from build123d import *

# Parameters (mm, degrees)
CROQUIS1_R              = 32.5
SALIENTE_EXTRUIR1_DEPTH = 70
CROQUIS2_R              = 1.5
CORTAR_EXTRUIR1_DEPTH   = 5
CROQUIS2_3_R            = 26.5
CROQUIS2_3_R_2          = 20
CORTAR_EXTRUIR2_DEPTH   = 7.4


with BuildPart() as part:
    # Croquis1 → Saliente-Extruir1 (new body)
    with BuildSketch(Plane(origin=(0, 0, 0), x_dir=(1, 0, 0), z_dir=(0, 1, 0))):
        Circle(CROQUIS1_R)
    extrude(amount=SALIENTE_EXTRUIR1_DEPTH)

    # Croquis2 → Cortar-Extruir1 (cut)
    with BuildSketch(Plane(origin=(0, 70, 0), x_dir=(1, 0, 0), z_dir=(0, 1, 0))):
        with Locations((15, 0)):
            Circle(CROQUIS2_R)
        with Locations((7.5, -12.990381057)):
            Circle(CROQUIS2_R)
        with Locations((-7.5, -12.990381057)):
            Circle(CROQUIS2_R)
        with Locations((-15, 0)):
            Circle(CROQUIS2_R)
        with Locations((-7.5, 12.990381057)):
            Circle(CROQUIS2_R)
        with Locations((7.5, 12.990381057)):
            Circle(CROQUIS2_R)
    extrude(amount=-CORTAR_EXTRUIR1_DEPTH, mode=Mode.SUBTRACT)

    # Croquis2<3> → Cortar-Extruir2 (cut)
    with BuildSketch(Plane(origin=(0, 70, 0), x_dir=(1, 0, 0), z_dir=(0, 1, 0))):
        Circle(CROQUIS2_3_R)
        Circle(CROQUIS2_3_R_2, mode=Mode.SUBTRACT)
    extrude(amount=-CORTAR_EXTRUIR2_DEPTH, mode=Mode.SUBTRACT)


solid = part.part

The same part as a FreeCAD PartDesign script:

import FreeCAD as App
import Part
import Sketcher
Q = App.Units.Quantity

doc = App.newDocument("Part")
body = doc.addObject("PartDesign::Body", "Body")

sketch1 = body.newObject("Sketcher::SketchObject", "Sketch")
sketch1.AttachmentSupport = (doc.getObject("XZ_Plane"), [""])
sketch1.MapMode = "FlatFace"
sketch1.addGeometry(Part.Circle(App.Vector(0, 0, 0), App.Vector(0, 0, 1), 32), False)
sketch1.addConstraint(Sketcher.Constraint("Coincident", 0, 3, -1, 1))
sketch1.addConstraint(Sketcher.Constraint("Diameter", 0, Q("65 mm")))
pad1 = body.newObject("PartDesign::Pad", "Pad")
pad1.Profile = sketch1
pad1.Length = 70
pad1.Reversed = True

sketch2 = body.newObject("Sketcher::SketchObject", "Sketch001")
sketch2.AttachmentSupport = (doc.getObject("XZ_Plane"), [""])
sketch2.MapMode = "FlatFace"
sketch2.AttachmentOffset = App.Placement(App.Vector(0, 0, -70), App.Rotation())
sketch2.addGeometry(Part.Circle(App.Vector(15, 0, 0), App.Vector(0, 0, 1), 1.5), False)
sketch2.addGeometry(Part.Circle(App.Vector(7.5, 13, 0), App.Vector(0, 0, 1), 1.5), False)
sketch2.addGeometry(Part.Circle(App.Vector(-7.5, 13, 0), App.Vector(0, 0, 1), 1.5), False)
sketch2.addGeometry(Part.Circle(App.Vector(-15, 0, 0), App.Vector(0, 0, 1), 1.5), False)
sketch2.addGeometry(Part.Circle(App.Vector(-7.5, -13, 0), App.Vector(0, 0, 1), 1.5), False)
sketch2.addGeometry(Part.Circle(App.Vector(7.5, -13, 0), App.Vector(0, 0, 1), 1.5), False)
sketch2.addConstraint(Sketcher.Constraint("Equal", 0, 1))
sketch2.addConstraint(Sketcher.Constraint("Equal", 1, 2))
sketch2.addConstraint(Sketcher.Constraint("Equal", 2, 3))
sketch2.addConstraint(Sketcher.Constraint("Equal", 3, 4))
sketch2.addConstraint(Sketcher.Constraint("Equal", 4, 5))
sketch2.addConstraint(Sketcher.Constraint("Symmetric", 0, 3, 3, 3, -1, 1))
sketch2.addConstraint(Sketcher.Constraint("Symmetric", 1, 3, 4, 3, -1, 1))
sketch2.addConstraint(Sketcher.Constraint("Symmetric", 2, 3, 5, 3, -1, 1))
sketch2.addConstraint(Sketcher.Constraint("Symmetric", 1, 3, 2, 3, -2))
sketch2.addConstraint(Sketcher.Constraint("PointOnObject", 0, 3, -1))
sketch2.addConstraint(Sketcher.Constraint("Diameter", 0, Q("3 mm")))
sketch2.addConstraint(Sketcher.Constraint("DistanceX", -1, 1, 0, 3, Q("15 mm")))
sketch2.addConstraint(Sketcher.Constraint("DistanceX", 2, 3, 1, 3, Q("15 mm")))
sketch2.addConstraint(Sketcher.Constraint("DistanceY", -1, 1, 1, 3, Q("12.990381 mm")))
pocket1 = body.newObject("PartDesign::Pocket", "Pocket")
pocket1.Profile = sketch2
pocket1.Length = 5
pocket1.Reversed = True

sketch3 = body.newObject("Sketcher::SketchObject", "Sketch002")
sketch3.AttachmentSupport = (doc.getObject("XZ_Plane"), [""])
sketch3.MapMode = "FlatFace"
sketch3.AttachmentOffset = App.Placement(App.Vector(0, 0, -70), App.Rotation())
sketch3.addGeometry(Part.Circle(App.Vector(0, 0, 0), App.Vector(0, 0, 1), 26), False)
sketch3.addGeometry(Part.Circle(App.Vector(0, 0, 0), App.Vector(0, 0, 1), 20), False)
sketch3.addConstraint(Sketcher.Constraint("Coincident", 0, 3, -1, 1))
sketch3.addConstraint(Sketcher.Constraint("Coincident", 1, 3, -1, 1))
sketch3.addConstraint(Sketcher.Constraint("Diameter", 0, Q("53 mm")))
sketch3.addConstraint(Sketcher.Constraint("Diameter", 1, Q("40 mm")))
pocket2 = body.newObject("PartDesign::Pocket", "Pocket001")
pocket2.Profile = sketch3
pocket2.Length = 7.4
pocket2.Reversed = True

doc.recompute()
